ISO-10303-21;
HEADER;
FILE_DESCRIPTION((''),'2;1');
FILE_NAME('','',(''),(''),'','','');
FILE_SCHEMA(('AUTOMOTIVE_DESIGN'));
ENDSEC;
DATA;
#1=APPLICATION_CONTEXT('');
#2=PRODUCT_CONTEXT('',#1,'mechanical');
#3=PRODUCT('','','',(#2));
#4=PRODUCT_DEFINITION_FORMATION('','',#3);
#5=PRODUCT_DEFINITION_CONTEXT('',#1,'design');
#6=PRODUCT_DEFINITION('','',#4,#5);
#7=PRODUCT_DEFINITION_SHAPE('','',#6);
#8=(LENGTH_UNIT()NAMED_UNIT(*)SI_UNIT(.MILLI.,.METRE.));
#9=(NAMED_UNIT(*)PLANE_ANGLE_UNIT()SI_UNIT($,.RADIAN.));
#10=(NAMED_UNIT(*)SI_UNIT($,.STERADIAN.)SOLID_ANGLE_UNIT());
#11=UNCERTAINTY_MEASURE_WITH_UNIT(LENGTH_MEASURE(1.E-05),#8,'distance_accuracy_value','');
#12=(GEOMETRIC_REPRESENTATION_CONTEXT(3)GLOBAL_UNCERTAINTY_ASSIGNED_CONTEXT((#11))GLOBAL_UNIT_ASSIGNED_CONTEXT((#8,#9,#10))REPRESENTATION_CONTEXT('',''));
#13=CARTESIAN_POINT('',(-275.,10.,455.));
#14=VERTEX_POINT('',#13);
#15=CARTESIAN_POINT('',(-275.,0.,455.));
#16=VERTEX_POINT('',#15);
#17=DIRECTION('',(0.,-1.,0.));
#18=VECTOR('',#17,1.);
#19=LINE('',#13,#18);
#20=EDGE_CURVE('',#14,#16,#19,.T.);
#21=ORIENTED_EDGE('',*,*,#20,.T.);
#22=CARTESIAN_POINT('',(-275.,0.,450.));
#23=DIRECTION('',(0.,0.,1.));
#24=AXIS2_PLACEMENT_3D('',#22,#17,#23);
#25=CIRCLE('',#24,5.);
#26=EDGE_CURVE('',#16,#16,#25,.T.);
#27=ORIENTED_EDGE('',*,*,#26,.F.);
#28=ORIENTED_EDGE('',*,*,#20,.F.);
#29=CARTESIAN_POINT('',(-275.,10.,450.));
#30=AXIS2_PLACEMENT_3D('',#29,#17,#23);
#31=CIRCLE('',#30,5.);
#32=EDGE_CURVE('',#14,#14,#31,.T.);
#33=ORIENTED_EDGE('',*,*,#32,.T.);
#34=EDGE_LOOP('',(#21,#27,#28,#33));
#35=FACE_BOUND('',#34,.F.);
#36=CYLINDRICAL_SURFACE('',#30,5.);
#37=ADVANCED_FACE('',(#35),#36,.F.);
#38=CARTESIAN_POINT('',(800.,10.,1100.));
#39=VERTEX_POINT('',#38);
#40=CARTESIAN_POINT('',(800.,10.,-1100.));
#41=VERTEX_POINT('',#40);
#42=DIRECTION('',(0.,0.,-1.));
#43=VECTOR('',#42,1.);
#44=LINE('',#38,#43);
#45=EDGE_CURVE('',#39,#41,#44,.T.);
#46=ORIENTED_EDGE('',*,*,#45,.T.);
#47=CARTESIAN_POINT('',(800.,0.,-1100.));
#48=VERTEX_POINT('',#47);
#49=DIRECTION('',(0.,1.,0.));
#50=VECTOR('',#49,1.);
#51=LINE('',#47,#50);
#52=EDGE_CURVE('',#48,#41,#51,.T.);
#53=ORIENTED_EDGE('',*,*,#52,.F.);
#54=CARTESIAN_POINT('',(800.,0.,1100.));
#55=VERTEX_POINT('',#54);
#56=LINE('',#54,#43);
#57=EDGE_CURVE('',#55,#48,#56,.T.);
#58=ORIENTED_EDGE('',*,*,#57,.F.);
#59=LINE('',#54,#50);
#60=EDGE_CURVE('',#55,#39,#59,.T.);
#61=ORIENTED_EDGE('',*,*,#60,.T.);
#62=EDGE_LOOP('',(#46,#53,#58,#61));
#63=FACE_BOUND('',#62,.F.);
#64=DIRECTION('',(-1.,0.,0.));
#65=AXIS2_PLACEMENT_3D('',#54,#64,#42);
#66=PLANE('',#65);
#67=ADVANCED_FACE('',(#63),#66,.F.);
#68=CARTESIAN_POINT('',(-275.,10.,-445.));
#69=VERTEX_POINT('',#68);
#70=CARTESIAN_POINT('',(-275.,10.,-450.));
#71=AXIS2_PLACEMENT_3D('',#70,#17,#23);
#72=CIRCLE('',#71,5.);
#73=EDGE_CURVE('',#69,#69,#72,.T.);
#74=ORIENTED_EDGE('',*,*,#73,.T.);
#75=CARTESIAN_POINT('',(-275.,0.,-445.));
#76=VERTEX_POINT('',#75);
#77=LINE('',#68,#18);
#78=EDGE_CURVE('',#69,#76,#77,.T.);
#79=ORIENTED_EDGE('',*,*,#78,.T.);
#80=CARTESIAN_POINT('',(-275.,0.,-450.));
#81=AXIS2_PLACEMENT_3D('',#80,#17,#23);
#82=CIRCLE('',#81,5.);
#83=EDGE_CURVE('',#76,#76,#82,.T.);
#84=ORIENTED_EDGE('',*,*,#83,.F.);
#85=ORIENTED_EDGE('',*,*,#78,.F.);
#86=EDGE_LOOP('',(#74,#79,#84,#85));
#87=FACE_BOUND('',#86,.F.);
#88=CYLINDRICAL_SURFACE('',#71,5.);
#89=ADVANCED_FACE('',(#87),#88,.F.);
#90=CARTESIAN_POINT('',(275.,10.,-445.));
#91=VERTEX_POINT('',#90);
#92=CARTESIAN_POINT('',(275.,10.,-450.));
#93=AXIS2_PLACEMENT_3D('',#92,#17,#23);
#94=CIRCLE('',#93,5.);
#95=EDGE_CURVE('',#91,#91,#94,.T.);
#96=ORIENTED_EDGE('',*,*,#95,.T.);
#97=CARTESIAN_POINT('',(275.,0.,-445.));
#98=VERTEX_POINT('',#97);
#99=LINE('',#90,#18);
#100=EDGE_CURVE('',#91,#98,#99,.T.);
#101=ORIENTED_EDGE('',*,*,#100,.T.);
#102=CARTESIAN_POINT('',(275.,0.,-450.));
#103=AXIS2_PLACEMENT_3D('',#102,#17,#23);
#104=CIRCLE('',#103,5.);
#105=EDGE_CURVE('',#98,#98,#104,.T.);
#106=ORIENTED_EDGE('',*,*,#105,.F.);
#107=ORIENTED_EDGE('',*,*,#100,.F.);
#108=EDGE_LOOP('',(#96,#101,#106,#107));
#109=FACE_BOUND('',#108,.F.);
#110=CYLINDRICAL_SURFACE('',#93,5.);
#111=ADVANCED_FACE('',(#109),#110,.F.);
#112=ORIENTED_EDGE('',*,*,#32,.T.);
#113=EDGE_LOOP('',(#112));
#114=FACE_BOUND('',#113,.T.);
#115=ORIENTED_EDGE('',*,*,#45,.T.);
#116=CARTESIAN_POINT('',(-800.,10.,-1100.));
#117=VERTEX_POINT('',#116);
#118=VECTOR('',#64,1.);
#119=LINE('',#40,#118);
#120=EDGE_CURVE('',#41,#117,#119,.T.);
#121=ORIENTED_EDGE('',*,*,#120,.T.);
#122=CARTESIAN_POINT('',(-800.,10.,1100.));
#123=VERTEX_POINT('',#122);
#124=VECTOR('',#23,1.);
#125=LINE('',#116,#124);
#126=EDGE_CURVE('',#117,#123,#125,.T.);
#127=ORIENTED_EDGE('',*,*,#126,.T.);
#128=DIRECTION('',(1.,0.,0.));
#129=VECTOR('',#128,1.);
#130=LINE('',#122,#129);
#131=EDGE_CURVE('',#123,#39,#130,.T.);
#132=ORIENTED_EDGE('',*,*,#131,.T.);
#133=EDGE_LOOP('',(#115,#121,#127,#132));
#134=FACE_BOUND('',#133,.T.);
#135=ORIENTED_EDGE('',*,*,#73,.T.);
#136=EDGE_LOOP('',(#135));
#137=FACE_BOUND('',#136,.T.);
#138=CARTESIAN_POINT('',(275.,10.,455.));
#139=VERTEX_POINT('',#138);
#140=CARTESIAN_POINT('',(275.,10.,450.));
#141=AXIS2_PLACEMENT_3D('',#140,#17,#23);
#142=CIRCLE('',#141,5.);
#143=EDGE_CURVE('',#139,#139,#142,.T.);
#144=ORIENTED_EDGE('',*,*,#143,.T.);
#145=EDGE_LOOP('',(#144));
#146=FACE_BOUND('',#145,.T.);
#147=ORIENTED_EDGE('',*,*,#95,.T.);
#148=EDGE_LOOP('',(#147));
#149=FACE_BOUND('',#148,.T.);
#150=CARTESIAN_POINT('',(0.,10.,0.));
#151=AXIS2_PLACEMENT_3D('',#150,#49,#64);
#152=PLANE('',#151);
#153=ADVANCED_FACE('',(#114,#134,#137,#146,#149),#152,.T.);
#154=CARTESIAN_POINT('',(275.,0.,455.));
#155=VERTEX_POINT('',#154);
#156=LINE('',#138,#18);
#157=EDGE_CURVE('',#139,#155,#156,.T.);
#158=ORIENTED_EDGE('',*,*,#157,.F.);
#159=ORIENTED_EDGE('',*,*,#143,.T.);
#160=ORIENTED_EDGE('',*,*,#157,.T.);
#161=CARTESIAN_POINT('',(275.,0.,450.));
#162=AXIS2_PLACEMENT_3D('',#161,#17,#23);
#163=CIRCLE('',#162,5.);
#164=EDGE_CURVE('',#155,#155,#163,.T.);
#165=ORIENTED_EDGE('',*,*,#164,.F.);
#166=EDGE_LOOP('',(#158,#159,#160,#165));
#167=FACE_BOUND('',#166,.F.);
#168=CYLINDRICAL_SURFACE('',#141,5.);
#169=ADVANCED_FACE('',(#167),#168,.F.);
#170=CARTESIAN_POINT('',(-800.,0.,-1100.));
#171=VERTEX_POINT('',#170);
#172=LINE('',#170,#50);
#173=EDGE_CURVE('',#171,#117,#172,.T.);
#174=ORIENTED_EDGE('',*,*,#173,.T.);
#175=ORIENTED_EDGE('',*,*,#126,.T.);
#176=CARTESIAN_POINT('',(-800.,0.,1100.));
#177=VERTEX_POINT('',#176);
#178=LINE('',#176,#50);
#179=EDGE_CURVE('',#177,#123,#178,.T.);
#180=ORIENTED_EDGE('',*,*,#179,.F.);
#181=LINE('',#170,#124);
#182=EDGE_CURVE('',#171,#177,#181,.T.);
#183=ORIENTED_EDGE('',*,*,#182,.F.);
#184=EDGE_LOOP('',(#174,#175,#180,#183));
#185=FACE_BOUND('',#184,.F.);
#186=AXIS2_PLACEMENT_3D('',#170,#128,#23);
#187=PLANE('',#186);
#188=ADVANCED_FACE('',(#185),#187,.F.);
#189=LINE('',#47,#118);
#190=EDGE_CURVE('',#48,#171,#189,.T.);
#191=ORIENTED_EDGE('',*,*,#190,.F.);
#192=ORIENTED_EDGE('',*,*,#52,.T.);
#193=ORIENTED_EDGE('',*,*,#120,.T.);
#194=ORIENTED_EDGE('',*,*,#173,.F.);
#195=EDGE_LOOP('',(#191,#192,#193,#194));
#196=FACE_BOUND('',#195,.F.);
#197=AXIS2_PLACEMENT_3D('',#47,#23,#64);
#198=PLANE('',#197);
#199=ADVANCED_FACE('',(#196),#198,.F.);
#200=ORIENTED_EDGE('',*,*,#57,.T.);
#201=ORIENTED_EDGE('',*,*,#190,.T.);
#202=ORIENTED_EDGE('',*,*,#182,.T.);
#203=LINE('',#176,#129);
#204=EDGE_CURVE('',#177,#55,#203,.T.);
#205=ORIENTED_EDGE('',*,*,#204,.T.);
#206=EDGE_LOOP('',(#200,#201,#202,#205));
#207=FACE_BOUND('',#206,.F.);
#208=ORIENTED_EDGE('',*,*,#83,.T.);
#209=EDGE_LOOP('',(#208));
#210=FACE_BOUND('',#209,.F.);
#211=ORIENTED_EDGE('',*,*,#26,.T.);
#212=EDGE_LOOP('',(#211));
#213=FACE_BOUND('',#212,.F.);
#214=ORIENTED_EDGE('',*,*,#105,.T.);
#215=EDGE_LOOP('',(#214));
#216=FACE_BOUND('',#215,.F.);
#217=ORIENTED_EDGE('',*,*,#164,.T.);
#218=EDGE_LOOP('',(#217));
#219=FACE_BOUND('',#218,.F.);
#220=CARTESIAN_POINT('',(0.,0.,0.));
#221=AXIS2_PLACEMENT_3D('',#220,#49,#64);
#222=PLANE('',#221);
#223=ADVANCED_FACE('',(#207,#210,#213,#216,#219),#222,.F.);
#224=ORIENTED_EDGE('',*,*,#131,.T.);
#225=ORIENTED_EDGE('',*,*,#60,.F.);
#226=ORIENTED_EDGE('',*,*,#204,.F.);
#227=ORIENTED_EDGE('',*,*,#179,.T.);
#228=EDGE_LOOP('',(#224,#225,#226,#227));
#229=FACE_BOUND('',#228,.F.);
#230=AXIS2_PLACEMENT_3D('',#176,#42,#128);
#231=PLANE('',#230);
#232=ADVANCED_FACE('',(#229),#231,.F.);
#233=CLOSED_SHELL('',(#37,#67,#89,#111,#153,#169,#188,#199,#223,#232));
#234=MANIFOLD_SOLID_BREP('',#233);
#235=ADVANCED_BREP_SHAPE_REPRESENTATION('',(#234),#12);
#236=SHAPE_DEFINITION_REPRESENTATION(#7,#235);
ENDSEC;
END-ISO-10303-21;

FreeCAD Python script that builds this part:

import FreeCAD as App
import Part
import Sketcher
Q = App.Units.Quantity

doc = App.newDocument("Part")
body = doc.addObject("PartDesign::Body", "Body")

sketch1 = body.newObject("Sketcher::SketchObject", "Sketch")
sketch1.AttachmentSupport = (doc.getObject("XZ_Plane"), [""])
sketch1.MapMode = "FlatFace"
sketch1.addGeometry(Part.LineSegment(App.Vector(-800, -1100, 0), App.Vector(-800, 1100, 0)), False)
sketch1.addGeometry(Part.LineSegment(App.Vector(-800, 1100, 0), App.Vector(800, 1100, 0)), False)
sketch1.addGeometry(Part.LineSegment(App.Vector(800, 1100, 0), App.Vector(800, -1100, 0)), False)
sketch1.addGeometry(Part.LineSegment(App.Vector(800, -1100, 0), App.Vector(-800, -1100, 0)), False)
sketch1.addConstraint(Sketcher.Constraint("Coincident", 0, 2, 1, 1))
sketch1.addConstraint(Sketcher.Constraint("Coincident", 1, 2, 2, 1))
sketch1.addConstraint(Sketcher.Constraint("Coincident", 2, 2, 3, 1))
sketch1.addConstraint(Sketcher.Constraint("Coincident", 3, 2, 0, 1))
sketch1.addConstraint(Sketcher.Constraint("Vertical", 0))
sketch1.addConstraint(Sketcher.Constraint("Horizontal", 1))
sketch1.addConstraint(Sketcher.Constraint("Vertical", 2))
sketch1.addConstraint(Sketcher.Constraint("Horizontal", 3))
sketch1.addConstraint(Sketcher.Constraint("Symmetric", 0, 2, 2, 2, -1, 1))
sketch1.addConstraint(Sketcher.Constraint("DistanceX", 1, 1, 1, 2, Q("1600 mm")))
sketch1.addConstraint(Sketcher.Constraint("DistanceY", 0, 1, 0, 2, Q("2200 mm")))
pad1 = body.newObject("PartDesign::Pad", "Pad")
pad1.Profile = sketch1
pad1.Length = 10
pad1.Reversed = True

sketch2 = body.newObject("Sketcher::SketchObject", "Sketch001")
sketch2.AttachmentSupport = (doc.getObject("XZ_Plane"), [""])
sketch2.MapMode = "FlatFace"
sketch2.AttachmentOffset = App.Placement(App.Vector(0, 0, -10), App.Rotation())
sketch2.addGeometry(Part.Circle(App.Vector(-275, 450, 0), App.Vector(0, 0, 1), 5), False)
sketch2.addGeometry(Part.Circle(App.Vector(275, 450, 0), App.Vector(0, 0, 1), 5), False)
sketch2.addGeometry(Part.Circle(App.Vector(-275, -450, 0), App.Vector(0, 0, 1), 5), False)
sketch2.addGeometry(Part.Circle(App.Vector(275, -450, 0), App.Vector(0, 0, 1), 5), False)
sketch2.addConstraint(Sketcher.Constraint("Equal", 0, 1))
sketch2.addConstraint(Sketcher.Constraint("Equal", 1, 2))
sketch2.addConstraint(Sketcher.Constraint("Equal", 2, 3))
sketch2.addConstraint(Sketcher.Constraint("Symmetric", 1, 3, 2, 3, -1, 1))
sketch2.addConstraint(Sketcher.Constraint("Symmetric", 0, 3, 3, 3, -1, 1))
sketch2.addConstraint(Sketcher.Constraint("Symmetric", 0, 3, 1, 3, -2))
sketch2.addConstraint(Sketcher.Constraint("Diameter", 0, Q("10 mm")))
sketch2.addConstraint(Sketcher.Constraint("DistanceX", 0, 3, -1, 1, Q("275 mm")))
sketch2.addConstraint(Sketcher.Constraint("DistanceY", -1, 1, 0, 3, Q("450 mm")))
doc.recompute()
hole = body.newObject("PartDesign::Hole", "Hole")
hole.Profile = sketch2
hole.ThreadType = "None"
hole.Diameter = 10
hole.DepthType = "ThroughAll"
hole.Reversed = True

doc.recompute()
